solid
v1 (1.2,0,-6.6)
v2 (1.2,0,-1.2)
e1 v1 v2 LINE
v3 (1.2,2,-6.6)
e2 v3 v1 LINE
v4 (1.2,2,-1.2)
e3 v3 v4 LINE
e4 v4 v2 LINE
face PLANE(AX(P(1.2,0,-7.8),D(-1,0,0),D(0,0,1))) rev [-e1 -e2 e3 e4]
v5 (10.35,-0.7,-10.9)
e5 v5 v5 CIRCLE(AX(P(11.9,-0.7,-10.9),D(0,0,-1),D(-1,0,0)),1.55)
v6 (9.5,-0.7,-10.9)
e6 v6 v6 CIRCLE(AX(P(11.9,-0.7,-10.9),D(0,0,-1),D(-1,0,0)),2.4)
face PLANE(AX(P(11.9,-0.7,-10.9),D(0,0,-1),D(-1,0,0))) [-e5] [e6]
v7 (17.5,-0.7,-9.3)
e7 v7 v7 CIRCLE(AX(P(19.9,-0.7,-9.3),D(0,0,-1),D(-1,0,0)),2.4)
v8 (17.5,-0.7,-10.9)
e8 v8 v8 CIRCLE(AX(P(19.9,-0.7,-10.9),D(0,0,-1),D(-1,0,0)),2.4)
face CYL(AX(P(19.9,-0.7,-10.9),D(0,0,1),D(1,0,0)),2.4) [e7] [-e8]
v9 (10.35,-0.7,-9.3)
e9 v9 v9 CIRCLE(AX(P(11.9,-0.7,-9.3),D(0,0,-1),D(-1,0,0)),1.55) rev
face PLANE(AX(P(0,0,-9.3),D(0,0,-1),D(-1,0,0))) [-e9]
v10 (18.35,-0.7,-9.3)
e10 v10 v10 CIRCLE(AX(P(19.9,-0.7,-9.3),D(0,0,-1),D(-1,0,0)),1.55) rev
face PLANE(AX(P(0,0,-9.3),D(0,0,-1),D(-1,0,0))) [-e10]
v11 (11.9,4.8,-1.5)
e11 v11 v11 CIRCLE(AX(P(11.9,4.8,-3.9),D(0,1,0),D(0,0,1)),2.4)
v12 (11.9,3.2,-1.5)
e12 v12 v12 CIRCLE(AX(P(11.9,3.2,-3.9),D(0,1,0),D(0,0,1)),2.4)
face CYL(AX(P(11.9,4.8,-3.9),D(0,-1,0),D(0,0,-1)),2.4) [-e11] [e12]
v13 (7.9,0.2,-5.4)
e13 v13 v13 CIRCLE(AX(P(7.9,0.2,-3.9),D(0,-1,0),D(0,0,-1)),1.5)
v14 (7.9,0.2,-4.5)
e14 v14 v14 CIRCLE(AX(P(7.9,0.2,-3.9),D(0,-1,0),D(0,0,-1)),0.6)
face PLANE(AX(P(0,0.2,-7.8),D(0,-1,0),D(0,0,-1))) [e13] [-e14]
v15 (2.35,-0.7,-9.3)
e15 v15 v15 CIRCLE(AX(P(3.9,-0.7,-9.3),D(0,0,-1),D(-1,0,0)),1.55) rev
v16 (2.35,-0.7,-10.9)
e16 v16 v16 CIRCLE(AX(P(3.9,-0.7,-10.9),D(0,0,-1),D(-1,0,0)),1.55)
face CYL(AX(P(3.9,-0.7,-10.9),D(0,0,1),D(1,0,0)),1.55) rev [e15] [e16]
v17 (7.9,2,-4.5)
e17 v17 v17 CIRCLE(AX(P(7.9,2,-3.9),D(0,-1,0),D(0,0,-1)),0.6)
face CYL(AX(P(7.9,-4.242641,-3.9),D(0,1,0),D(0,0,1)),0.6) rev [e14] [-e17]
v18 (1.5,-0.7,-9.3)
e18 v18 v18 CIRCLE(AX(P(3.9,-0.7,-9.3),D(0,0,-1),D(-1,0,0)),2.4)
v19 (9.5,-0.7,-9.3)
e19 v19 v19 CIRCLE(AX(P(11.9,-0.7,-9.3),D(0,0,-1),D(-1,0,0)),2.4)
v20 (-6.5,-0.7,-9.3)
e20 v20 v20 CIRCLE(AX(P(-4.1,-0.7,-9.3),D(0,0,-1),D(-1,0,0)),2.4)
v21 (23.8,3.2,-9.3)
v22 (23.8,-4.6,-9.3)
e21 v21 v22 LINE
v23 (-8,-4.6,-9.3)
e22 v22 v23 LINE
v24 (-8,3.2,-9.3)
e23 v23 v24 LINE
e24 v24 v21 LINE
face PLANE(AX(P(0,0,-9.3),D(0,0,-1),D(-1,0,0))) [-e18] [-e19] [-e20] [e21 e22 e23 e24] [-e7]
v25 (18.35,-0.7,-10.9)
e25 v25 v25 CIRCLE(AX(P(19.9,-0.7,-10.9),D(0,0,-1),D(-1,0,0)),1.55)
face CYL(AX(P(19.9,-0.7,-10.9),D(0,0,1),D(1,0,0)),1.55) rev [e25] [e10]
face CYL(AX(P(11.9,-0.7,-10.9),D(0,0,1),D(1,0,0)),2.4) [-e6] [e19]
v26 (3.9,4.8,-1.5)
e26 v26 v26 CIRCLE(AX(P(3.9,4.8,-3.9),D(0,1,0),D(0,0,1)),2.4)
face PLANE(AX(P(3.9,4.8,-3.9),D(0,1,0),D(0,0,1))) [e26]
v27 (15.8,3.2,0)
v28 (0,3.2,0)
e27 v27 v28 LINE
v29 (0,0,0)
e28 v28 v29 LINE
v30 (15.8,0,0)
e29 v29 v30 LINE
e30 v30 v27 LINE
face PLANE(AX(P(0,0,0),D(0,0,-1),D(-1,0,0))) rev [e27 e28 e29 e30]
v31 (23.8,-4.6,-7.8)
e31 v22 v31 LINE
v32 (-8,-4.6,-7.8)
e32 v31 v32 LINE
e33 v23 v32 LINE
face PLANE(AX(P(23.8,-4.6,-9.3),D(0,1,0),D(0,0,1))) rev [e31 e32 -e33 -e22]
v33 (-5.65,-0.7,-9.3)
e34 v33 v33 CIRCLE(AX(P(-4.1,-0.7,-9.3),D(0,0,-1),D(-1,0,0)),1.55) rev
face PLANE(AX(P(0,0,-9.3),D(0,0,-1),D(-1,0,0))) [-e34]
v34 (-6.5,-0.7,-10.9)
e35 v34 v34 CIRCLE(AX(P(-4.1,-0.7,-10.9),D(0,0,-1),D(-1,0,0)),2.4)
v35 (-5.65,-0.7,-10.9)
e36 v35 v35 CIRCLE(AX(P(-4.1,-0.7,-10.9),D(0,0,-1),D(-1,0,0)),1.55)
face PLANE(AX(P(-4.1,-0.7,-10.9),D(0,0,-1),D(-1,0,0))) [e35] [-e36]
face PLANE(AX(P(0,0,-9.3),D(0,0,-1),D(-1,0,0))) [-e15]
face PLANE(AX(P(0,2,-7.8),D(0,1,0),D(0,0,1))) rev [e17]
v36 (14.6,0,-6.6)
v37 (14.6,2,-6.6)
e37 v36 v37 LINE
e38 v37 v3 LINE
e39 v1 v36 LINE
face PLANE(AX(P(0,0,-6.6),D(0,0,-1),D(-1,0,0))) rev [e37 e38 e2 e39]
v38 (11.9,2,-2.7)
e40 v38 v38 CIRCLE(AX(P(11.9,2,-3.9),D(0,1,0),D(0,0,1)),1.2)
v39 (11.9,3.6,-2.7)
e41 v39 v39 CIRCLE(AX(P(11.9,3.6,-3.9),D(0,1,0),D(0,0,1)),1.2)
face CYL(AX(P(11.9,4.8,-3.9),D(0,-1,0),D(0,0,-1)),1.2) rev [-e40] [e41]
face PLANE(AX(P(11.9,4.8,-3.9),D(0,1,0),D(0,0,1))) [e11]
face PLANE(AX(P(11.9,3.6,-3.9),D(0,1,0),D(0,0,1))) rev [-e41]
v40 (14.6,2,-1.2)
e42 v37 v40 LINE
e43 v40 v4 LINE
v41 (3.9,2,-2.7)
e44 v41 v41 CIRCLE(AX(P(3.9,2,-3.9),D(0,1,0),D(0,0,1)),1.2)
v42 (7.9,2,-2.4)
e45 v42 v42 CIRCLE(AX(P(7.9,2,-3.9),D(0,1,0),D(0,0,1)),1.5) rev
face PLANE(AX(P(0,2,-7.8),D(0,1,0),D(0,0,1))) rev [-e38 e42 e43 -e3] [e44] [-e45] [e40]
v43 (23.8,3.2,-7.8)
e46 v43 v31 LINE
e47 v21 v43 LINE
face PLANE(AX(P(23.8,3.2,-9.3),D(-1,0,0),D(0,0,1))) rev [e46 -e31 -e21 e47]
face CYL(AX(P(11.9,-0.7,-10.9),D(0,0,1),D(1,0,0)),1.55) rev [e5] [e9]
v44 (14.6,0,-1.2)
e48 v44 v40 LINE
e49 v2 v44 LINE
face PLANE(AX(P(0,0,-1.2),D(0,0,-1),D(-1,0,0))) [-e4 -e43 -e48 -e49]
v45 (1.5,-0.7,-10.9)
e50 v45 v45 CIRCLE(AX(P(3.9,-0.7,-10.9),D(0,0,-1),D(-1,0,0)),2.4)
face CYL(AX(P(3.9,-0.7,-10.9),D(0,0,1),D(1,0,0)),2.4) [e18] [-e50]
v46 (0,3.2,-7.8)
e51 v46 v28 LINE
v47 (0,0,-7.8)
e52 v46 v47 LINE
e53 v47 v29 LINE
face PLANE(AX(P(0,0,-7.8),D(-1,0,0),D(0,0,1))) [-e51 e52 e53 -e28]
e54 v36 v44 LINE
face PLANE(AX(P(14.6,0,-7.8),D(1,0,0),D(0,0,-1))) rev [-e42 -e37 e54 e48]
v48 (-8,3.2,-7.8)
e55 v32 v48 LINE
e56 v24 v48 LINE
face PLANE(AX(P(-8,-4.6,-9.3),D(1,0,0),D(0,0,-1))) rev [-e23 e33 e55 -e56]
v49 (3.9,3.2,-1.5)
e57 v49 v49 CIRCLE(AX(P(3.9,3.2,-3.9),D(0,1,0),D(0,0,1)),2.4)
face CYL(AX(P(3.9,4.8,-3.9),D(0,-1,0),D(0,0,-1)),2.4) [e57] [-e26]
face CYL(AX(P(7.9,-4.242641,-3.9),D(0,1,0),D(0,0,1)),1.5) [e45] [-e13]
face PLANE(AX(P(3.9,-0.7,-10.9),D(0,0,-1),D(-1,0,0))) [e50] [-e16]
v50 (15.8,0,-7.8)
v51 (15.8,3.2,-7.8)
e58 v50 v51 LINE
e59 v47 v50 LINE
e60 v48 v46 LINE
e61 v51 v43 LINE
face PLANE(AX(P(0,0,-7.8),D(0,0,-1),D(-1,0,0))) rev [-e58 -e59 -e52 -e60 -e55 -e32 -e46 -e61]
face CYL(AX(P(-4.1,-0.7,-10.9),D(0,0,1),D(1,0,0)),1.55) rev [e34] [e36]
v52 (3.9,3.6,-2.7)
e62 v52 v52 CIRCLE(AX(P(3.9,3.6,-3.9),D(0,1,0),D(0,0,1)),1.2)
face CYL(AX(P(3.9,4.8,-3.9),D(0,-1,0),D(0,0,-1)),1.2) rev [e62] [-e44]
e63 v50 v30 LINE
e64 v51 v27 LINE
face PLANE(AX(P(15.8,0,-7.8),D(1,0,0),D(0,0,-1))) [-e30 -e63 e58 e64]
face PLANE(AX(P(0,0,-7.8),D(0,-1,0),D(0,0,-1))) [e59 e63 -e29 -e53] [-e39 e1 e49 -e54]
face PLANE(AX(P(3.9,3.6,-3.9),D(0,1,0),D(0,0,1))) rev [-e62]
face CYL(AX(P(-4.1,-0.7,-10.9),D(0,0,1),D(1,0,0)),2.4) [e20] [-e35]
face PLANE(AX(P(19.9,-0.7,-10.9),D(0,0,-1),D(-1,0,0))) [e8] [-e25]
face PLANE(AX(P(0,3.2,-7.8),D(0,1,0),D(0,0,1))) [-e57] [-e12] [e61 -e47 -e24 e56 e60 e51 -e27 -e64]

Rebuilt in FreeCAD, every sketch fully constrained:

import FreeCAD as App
import Part
import Sketcher

V = App.Vector


def faces_at(feature, points):
    """Names of the faces that lie closest to the given points."""
    faces = feature.Shape.Faces
    near = lambda p: min(range(len(faces)), key=lambda i: faces[i].distToShape(Part.Vertex(*p))[0])
    return sorted({f"Face{near(p) + 1}" for p in points})


def add_polygon(sketch, points):
    """Adds a closed chain of lines whose ends are joined by coincident constraints."""
    first, n = sketch.GeometryCount, len(points)
    for a, b in zip(points, points[1:] + points[:1]):
        sketch.addGeometry(Part.LineSegment(App.Vector(*a, 0), App.Vector(*b, 0)), False)
    for i in range(n):
        sketch.addConstraint(Sketcher.Constraint("Coincident", first + i, 2, first + (i + 1) % n, 1))

doc = App.newDocument("Part")
body = doc.addObject("PartDesign::Body", "Body")

# Sketch on XY plane
sketch1 = body.newObject("Sketcher::SketchObject", "Sketch")
sketch1.AttachmentSupport = (doc.getObject("XY_Plane"), [""])
sketch1.MapMode = "FlatFace"
add_polygon(sketch1, [(0, 3.2), (0, 0), (15.8, 0), (15.8, 3.2)])  # lines 0-3
sketch1.addConstraint(Sketcher.Constraint("Vertical", 0))
sketch1.addConstraint(Sketcher.Constraint("Horizontal", 1))
sketch1.addConstraint(Sketcher.Constraint("Vertical", 2))
sketch1.addConstraint(Sketcher.Constraint("Horizontal", 3))
sketch1.addConstraint(Sketcher.Constraint("Coincident", 0, 2, -1, 1))
sketch1.addConstraint(Sketcher.Constraint("DistanceX", 1, 1, 1, 2, 15.8))
sketch1.addConstraint(Sketcher.Constraint("DistanceY", 0, 2, 0, 1, 3.2))
pad1 = body.newObject("PartDesign::Pad", "Pad")
pad1.Profile = sketch1
pad1.Length = 7.8
pad1.Reversed = True

# Sketch on XZ plane
sketch2 = body.newObject("Sketcher::SketchObject", "Sketch001")
sketch2.AttachmentSupport = (doc.getObject("XZ_Plane"), [""])
sketch2.MapMode = "FlatFace"
sketch2.AttachmentOffset = App.Placement(V(0, 0, -3.2), App.Rotation())
sketch2.addGeometry(Part.Circle(V(3.9, -3.9, 0), V(0, 0, 1), 2.4), False)
sketch2.addConstraint(Sketcher.Constraint("Diameter", 0, 4.8))
sketch2.addConstraint(Sketcher.Constraint("DistanceX", -1, 1, 0, 3, 3.9))
sketch2.addConstraint(Sketcher.Constraint("DistanceY", 0, 3, -1, 1, 3.9))
pad2 = body.newObject("PartDesign::Pad", "Pad001")
pad2.Profile = sketch2
pad2.Length = 1.6
pad2.Reversed = True
doc.recompute()

linearpattern = body.newObject("PartDesign::LinearPattern", "LinearPattern")
linearpattern.Originals = [pad2]
linearpattern.Direction = (doc.getObject("X_Axis"), [""])
linearpattern.Mode = "offset"
linearpattern.Offset = 8
linearpattern.Occurrences = 2
body.Tip = linearpattern
doc.recompute()

thickness = body.newObject("PartDesign::Thickness", "Thickness")
thickness.Base = (linearpattern, faces_at(linearpattern, [(7.9, 0, -3.9)]))
thickness.Value = 1.2
thickness.Reversed = True
thickness.Join = "Intersection"

# Sketch on XZ plane
sketch3 = body.newObject("Sketcher::SketchObject", "Sketch002")
sketch3.AttachmentSupport = (doc.getObject("XZ_Plane"), [""])
sketch3.MapMode = "FlatFace"
sketch3.AttachmentOffset = App.Placement(V(0, 0, -2), App.Rotation())
sketch3.addGeometry(Part.Circle(V(7.9, -3.9, 0), V(0, 0, 1), 1.5), False)
sketch3.addGeometry(Part.Circle(V(7.9, -3.9, 0), V(0, 0, 1), 0.6), False)
sketch3.addConstraint(Sketcher.Constraint("Coincident", 1, 3, 0, 3))
sketch3.addConstraint(Sketcher.Constraint("Diameter", 0, 3.0))
sketch3.addConstraint(Sketcher.Constraint("Diameter", 1, 1.2))
sketch3.addConstraint(Sketcher.Constraint("DistanceX", -1, 1, 0, 3, 7.9))
sketch3.addConstraint(Sketcher.Constraint("DistanceY", 0, 3, -1, 1, 3.9))
pad3 = body.newObject("PartDesign::Pad", "Pad002")
pad3.Profile = sketch3
pad3.Length = 1.8

# Sketch on XY plane
sketch4 = body.newObject("Sketcher::SketchObject", "Sketch003")
sketch4.AttachmentSupport = (doc.getObject("XY_Plane"), [""])
sketch4.MapMode = "FlatFace"
sketch4.AttachmentOffset = App.Placement(V(0, 0, -7.8), App.Rotation())
add_polygon(sketch4, [(24, 3), (24, -5), (-8, -5), (-8, 3)])  # lines 0-3
sketch4.addConstraint(Sketcher.Constraint("Vertical", 0))
sketch4.addConstraint(Sketcher.Constraint("Horizontal", 1))
sketch4.addConstraint(Sketcher.Constraint("Vertical", 2))
sketch4.addConstraint(Sketcher.Constraint("Horizontal", 3))
sketch4.addConstraint(Sketcher.Constraint("DistanceX", 1, 2, 1, 1, 31.8))
sketch4.addConstraint(Sketcher.Constraint("DistanceY", 0, 2, 0, 1, 7.8))
sketch4.addConstraint(Sketcher.Constraint("DistanceX", 1, 2, -1, 1, 8.0))
sketch4.addConstraint(Sketcher.Constraint("DistanceY", 0, 2, -1, 1, 4.6))
pad4 = body.newObject("PartDesign::Pad", "Pad003")
pad4.Profile = sketch4
pad4.Length = 1.5
pad4.Reversed = True

# Sketch on XY plane
sketch5 = body.newObject("Sketcher::SketchObject", "Sketch004")
sketch5.AttachmentSupport = (doc.getObject("XY_Plane"), [""])
sketch5.MapMode = "FlatFace"
sketch5.AttachmentOffset = App.Placement(V(0, 0, -9.3), App.Rotation())
sketch5.addGeometry(Part.Circle(V(-4.1, -0.7, 0), V(0, 0, 1), 2.4), False)
sketch5.addGeometry(Part.Circle(V(-4.1, -0.7, 0), V(0, 0, 1), 1.6), False)
sketch5.addConstraint(Sketcher.Constraint("Coincident", 1, 3, 0, 3))
sketch5.addConstraint(Sketcher.Constraint("Diameter", 0, 4.8))
sketch5.addConstraint(Sketcher.Constraint("Diameter", 1, 3.1))
sketch5.addConstraint(Sketcher.Constraint("DistanceX", 0, 3, -1, 1, 4.1))
sketch5.addConstraint(Sketcher.Constraint("DistanceY", 0, 3, -1, 1, 0.7))
pad5 = body.newObject("PartDesign::Pad", "Pad004")
pad5.Profile = sketch5
pad5.Length = 1.6
pad5.Reversed = True
doc.recompute()

linearpattern2 = body.newObject("PartDesign::LinearPattern", "LinearPattern001")
linearpattern2.Originals = [pad5]
linearpattern2.Direction = (doc.getObject("X_Axis"), [""])
linearpattern2.Mode = "offset"
linearpattern2.Offset = 8
linearpattern2.Occurrences = 4
body.Tip = linearpattern2

doc.recompute()
